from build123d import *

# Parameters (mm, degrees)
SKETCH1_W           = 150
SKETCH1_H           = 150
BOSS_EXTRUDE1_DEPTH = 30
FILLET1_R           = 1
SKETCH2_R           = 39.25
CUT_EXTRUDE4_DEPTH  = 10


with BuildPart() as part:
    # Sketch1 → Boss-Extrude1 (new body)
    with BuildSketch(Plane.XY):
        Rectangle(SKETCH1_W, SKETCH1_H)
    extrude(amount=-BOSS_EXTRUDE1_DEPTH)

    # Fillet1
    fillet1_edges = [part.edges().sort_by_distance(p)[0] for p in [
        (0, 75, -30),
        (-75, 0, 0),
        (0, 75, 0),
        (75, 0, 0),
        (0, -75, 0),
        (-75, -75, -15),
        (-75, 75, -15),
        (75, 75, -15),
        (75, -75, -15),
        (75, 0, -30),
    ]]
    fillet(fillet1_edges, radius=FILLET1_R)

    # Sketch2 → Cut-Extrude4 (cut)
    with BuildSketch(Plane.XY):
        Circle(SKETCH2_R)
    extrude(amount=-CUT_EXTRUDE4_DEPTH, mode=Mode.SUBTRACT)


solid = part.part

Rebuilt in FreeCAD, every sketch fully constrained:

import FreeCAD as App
import Part
import Sketcher

V = App.Vector
Q = App.Units.Quantity


def edges_at(feature, points):
    """Names of the edges that pass closest to the given points."""
    edges = feature.Shape.Edges
    near = lambda p: min(range(len(edges)), key=lambda i: edges[i].distToShape(Part.Vertex(*p))[0])
    return sorted({f"Edge{near(p) + 1}" for p in points})

doc = App.newDocument("Part")
body = doc.addObject("PartDesign::Body", "Body")

sketch1 = doc.addObject("Sketcher::SketchObject", "Sketch")
body.addObject(sketch1)
sketch1.AttachmentSupport = (doc.XY_Plane, [""])
sketch1.MapMode = "FlatFace"
sketch1.addGeometry([
    Part.LineSegment(V(-75, 75, 0), V(-75, -75, 0)),
    Part.LineSegment(V(-75, -75, 0), V(75, -75, 0)),
    Part.LineSegment(V(75, -75, 0), V(75, 75, 0)),
    Part.LineSegment(V(75, 75, 0), V(-75, 75, 0)),
], False)
sketch1.addConstraint([
    Sketcher.Constraint("Coincident", 0, 2, 1, 1),
    Sketcher.Constraint("Coincident", 1, 2, 2, 1),
    Sketcher.Constraint("Coincident", 2, 2, 3, 1),
    Sketcher.Constraint("Coincident", 3, 2, 0, 1),
    Sketcher.Constraint("Vertical", 0),
    Sketcher.Constraint("Horizontal", 1),
    Sketcher.Constraint("Vertical", 2),
    Sketcher.Constraint("Horizontal", 3),
    Sketcher.Constraint("Symmetric", 0, 2, 2, 2, -1, 1),
    Sketcher.Constraint("Equal", 3, 0),
    Sketcher.Constraint("DistanceX", 1, 1, 1, 2, Q("150 mm")),
])
pad1 = doc.addObject("PartDesign::Pad", "Pad")
body.addObject(pad1)
pad1.Profile = sketch1
pad1.Length = 30
pad1.Reversed = True
doc.recompute()

fillet = doc.addObject("PartDesign::Fillet", "Fillet")
body.addObject(fillet)
fillet.Base = (pad1, edges_at(pad1, [
    (0, 75, -30),
    (-75, 0, 0),
    (0, 75, 0),
    (75, 0, 0),
    (0, -75, 0),
    (-75, -75, -15),
    (-75, 75, -15),
    (75, 75, -15),
    (75, -75, -15),
    (75, 0, -30),
]))
fillet.Radius = 1

sketch2 = doc.addObject("Sketcher::SketchObject", "Sketch001")
body.addObject(sketch2)
sketch2.AttachmentSupport = (doc.XY_Plane, [""])
sketch2.MapMode = "FlatFace"
sketch2.addGeometry(Part.Circle(V(0, 0, 0), V(0, 0, 1), 39), False)
sketch2.addConstraint([
    Sketcher.Constraint("Coincident", 0, 3, -1, 1),
    Sketcher.Constraint("Diameter", 0, Q("78.5 mm")),
])
pocket1 = doc.addObject("PartDesign::Pocket", "Pocket")
body.addObject(pocket1)
pocket1.Profile = sketch2
pocket1.Length = 10

doc.recompute()
